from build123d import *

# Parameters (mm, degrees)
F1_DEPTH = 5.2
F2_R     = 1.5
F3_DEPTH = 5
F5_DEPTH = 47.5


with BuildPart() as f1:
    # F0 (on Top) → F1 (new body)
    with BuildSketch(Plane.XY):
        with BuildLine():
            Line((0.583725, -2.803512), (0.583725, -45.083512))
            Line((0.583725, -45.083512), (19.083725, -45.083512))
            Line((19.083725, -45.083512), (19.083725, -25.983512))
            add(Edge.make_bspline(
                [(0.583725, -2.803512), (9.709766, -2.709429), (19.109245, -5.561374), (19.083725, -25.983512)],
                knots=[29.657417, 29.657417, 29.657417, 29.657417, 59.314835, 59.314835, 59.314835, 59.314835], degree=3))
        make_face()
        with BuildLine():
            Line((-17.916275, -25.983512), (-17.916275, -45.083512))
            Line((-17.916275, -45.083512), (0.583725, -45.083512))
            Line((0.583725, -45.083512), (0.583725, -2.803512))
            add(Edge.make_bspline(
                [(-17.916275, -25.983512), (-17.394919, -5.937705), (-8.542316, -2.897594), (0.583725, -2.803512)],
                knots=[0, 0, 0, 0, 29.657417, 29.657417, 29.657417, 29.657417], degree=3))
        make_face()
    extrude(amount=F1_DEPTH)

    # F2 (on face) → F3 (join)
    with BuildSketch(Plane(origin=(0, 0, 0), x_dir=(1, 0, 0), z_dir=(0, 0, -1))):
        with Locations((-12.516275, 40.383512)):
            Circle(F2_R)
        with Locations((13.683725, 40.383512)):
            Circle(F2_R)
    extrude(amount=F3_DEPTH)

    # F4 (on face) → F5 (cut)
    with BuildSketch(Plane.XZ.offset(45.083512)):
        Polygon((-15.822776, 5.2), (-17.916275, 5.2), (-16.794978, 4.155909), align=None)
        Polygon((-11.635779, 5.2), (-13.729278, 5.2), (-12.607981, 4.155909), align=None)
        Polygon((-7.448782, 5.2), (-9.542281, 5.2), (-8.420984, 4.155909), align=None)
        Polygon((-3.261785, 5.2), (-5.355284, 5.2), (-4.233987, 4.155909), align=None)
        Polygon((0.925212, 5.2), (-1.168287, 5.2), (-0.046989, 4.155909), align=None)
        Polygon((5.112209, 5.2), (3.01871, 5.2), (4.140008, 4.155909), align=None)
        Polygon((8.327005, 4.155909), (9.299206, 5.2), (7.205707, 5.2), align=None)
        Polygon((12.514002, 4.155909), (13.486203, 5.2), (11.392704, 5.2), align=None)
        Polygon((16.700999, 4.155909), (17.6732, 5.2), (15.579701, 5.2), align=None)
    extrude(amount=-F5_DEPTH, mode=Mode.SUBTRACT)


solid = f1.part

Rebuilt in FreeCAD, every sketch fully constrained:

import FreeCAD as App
import Part
import Sketcher
from FreeCAD import Vector
Q = App.Units.Quantity


def add_polygon(sketch, points):
    """Adds a closed chain of lines whose ends are joined by coincident constraints."""
    first, n = sketch.GeometryCount, len(points)
    for a, b in zip(points, points[1:] + points[:1]):
        sketch.addGeometry(Part.LineSegment(App.Vector(*a, 0), App.Vector(*b, 0)), False)
    for i in range(n):
        sketch.addConstraint(Sketcher.Constraint("Coincident", first + i, 2, first + (i + 1) % n, 1))

doc = App.newDocument("Part")
body = doc.addObject("PartDesign::Body", "Body")

sketch1 = body.newObject("Sketcher::SketchObject", "Sketch")
sketch1.AttachmentSupport = (doc.getObject("XY_Plane"), [""])
sketch1.MapMode = "FlatFace"
sketch1.addGeometry(Part.LineSegment(Vector(19.083725, -45.083512, 0), Vector(19.083725, -25.983512, 0)), False)
sketch1.addGeometry(Part.BSplineCurve([Vector(0.583725, -2.803512, 0), Vector(9.709766, -2.709429, 0), Vector(19.109245, -5.561374, 0), Vector(19.083725, -25.983512, 0)], [4, 4], [29.657417, 59.314835], False, 3, [1, 1, 1, 1], False), False)
sketch1.addGeometry(Part.BSplineCurve([Vector(-17.916275, -25.983512, 0), Vector(-17.394919, -5.937705, 0), Vector(-8.542316, -2.897594, 0), Vector(0.583725, -2.803512, 0)], [4, 4], [0, 29.657417], False, 3, [1, 1, 1, 1], False), False)
sketch1.addGeometry(Part.LineSegment(Vector(-17.916275, -25.983512, 0), Vector(-17.916275, -45.083512, 0)), False)
sketch1.addGeometry(Part.LineSegment(Vector(-17.916275, -45.083512, 0), Vector(19.083725, -45.083512, 0)), False)
sketch1.addConstraint(Sketcher.Constraint("Block", 1))
sketch1.addConstraint(Sketcher.Constraint("Block", 2))
sketch1.addConstraint(Sketcher.Constraint("Coincident", 0, 2, 1, 2))
sketch1.addConstraint(Sketcher.Constraint("Coincident", 2, 1, 3, 1))
sketch1.addConstraint(Sketcher.Constraint("Coincident", 3, 2, 4, 1))
sketch1.addConstraint(Sketcher.Constraint("Coincident", 4, 2, 0, 1))
sketch1.addConstraint(Sketcher.Constraint("Vertical", 0))
sketch1.addConstraint(Sketcher.Constraint("Vertical", 3))
sketch1.addConstraint(Sketcher.Constraint("Horizontal", 4))
sketch1.addConstraint(Sketcher.Constraint("DistanceY", 0, 1, 0, 2, Q("19.1 mm")))
pad1 = body.newObject("PartDesign::Pad", "Pad")
pad1.Profile = sketch1
pad1.Length = 5.2

sketch2 = body.newObject("Sketcher::SketchObject", "Sketch001")
sketch2.AttachmentSupport = (doc.getObject("XY_Plane"), [""])
sketch2.MapMode = "FlatFace"
sketch2.addGeometry(Part.Circle(Vector(-12.5, -40.4, 0), Vector(0, 0, 1), 1.5), False)
sketch2.addGeometry(Part.Circle(Vector(13.7, -40.4, 0), Vector(0, 0, 1), 1.5), False)
sketch2.addConstraint(Sketcher.Constraint("Equal", 0, 1))
sketch2.addConstraint(Sketcher.Constraint("Horizontal", 0, 3, 1, 3))
sketch2.addConstraint(Sketcher.Constraint("Diameter", 0, Q("3 mm")))
sketch2.addConstraint(Sketcher.Constraint("DistanceX", 0, 3, 1, 3, Q("26.2 mm")))
sketch2.addConstraint(Sketcher.Constraint("DistanceX", 0, 3, -1, 1, Q("12.516275 mm")))
sketch2.addConstraint(Sketcher.Constraint("DistanceY", 0, 3, -1, 1, Q("40.383512 mm")))
pad2 = body.newObject("PartDesign::Pad", "Pad001")
pad2.Profile = sketch2
pad2.Length = 5
pad2.Reversed = True

sketch3 = body.newObject("Sketcher::SketchObject", "Sketch002")
sketch3.AttachmentSupport = (doc.getObject("XZ_Plane"), [""])
sketch3.MapMode = "FlatFace"
sketch3.AttachmentOffset = App.Placement(Vector(0, 0, 45.083512), App.Rotation())
add_polygon(sketch3, [(-15.8, 5.2), (-17.9, 5.2), (-16.8, 4.2)])
add_polygon(sketch3, [(-11.6, 5.2), (-13.7, 5.2), (-12.6, 4.2)])
add_polygon(sketch3, [(-7.4, 5.2), (-9.5, 5.2), (-8.4, 4.2)])
add_polygon(sketch3, [(-3.3, 5.2), (-5.4, 5.2), (-4.2, 4.2)])
add_polygon(sketch3, [(0.9, 5.2), (-1.2, 5.2), (0, 4.2)])
add_polygon(sketch3, [(5.1, 5.2), (3, 5.2), (4.1, 4.2)])
add_polygon(sketch3, [(8.3, 4.2), (9.3, 5.2), (7.2, 5.2)])
add_polygon(sketch3, [(12.5, 4.2), (13.5, 5.2), (11.4, 5.2)])
add_polygon(sketch3, [(16.7, 4.2), (17.7, 5.2), (15.6, 5.2)])
sketch3.addConstraint(Sketcher.Constraint("Horizontal", 0))
sketch3.addConstraint(Sketcher.Constraint("Horizontal", 3))
sketch3.addConstraint(Sketcher.Constraint("Horizontal", 6))
sketch3.addConstraint(Sketcher.Constraint("Horizontal", 9))
sketch3.addConstraint(Sketcher.Constraint("Horizontal", 12))
sketch3.addConstraint(Sketcher.Constraint("Horizontal", 15))
sketch3.addConstraint(Sketcher.Constraint("Horizontal", 19))
sketch3.addConstraint(Sketcher.Constraint("Horizontal", 22))
sketch3.addConstraint(Sketcher.Constraint("Horizontal", 25))
sketch3.addConstraint(Sketcher.Constraint("Perpendicular", 1, 2))
sketch3.addConstraint(Sketcher.Constraint("Perpendicular", 2, 4))
sketch3.addConstraint(Sketcher.Constraint("Perpendicular", 4, 5))
sketch3.addConstraint(Sketcher.Constraint("Perpendicular", 5, 7))
sketch3.addConstraint(Sketcher.Constraint("Perpendicular", 7, 8))
sketch3.addConstraint(Sketcher.Constraint("Perpendicular", 8, 10))
sketch3.addConstraint(Sketcher.Constraint("Perpendicular", 10, 11))
sketch3.addConstraint(Sketcher.Constraint("Perpendicular", 11, 13))
sketch3.addConstraint(Sketcher.Constraint("Perpendicular", 13, 14))
sketch3.addConstraint(Sketcher.Constraint("Perpendicular", 14, 16))
sketch3.addConstraint(Sketcher.Constraint("Perpendicular", 16, 17))
sketch3.addConstraint(Sketcher.Constraint("Parallel", 17, 18))
sketch3.addConstraint(Sketcher.Constraint("Perpendicular", 18, 20))
sketch3.addConstraint(Sketcher.Constraint("Perpendicular", 20, 21))
sketch3.addConstraint(Sketcher.Constraint("Perpendicular", 21, 23))
sketch3.addConstraint(Sketcher.Constraint("Perpendicular", 23, 24))
sketch3.addConstraint(Sketcher.Constraint("Perpendicular", 24, 26))
sketch3.addConstraint(Sketcher.Constraint("Horizontal", 2, 2, 3, 2))
sketch3.addConstraint(Sketcher.Constraint("Horizontal", 1, 2, 4, 2))
sketch3.addConstraint(Sketcher.Constraint("Horizontal", 5, 2, 6, 2))
sketch3.addConstraint(Sketcher.Constraint("Horizontal", 4, 2, 7, 2))
sketch3.addConstraint(Sketcher.Constraint("Horizontal", 8, 2, 9, 2))
sketch3.addConstraint(Sketcher.Constraint("Horizontal", 7, 2, 10, 2))
sketch3.addConstraint(Sketcher.Constraint("Horizontal", 11, 2, 12, 2))
sketch3.addConstraint(Sketcher.Constraint("Horizontal", 10, 2, 13, 2))
sketch3.addConstraint(Sketcher.Constraint("Horizontal", 14, 2, 15, 2))
sketch3.addConstraint(Sketcher.Constraint("Horizontal", 13, 2, 16, 2))
sketch3.addConstraint(Sketcher.Constraint("Horizontal", 17, 2, 18, 2))
sketch3.addConstraint(Sketcher.Constraint("Horizontal", 16, 2, 20, 2))
sketch3.addConstraint(Sketcher.Constraint("Horizontal", 19, 2, 21, 2))
sketch3.addConstraint(Sketcher.Constraint("Horizontal", 20, 2, 23, 2))
sketch3.addConstraint(Sketcher.Constraint("Horizontal", 22, 2, 24, 2))
sketch3.addConstraint(Sketcher.Constraint("Horizontal", 23, 2, 26, 2))
sketch3.addConstraint(Sketcher.Constraint("DistanceY", -1, 1, 0, 2, Q("5.2 mm")))
sketch3.addConstraint(Sketcher.Constraint("DistanceX", 0, 2, 0, 1, Q("2.093499 mm")))
sketch3.addConstraint(Sketcher.Constraint("DistanceX", -1, 1, 26, 2, Q("16.700999 mm")))
sketch3.addConstraint(Sketcher.Constraint("DistanceX", -1, 1, 24, 2, Q("17.6732 mm")))
sketch3.addConstraint(Sketcher.Constraint("DistanceX", 1, 2, 3, 2, Q("3.0657 mm")))
sketch3.addConstraint(Sketcher.Constraint("DistanceX", 5, 2, 6, 2, Q("2.093498 mm")))
sketch3.addConstraint(Sketcher.Constraint("DistanceX", 7, 2, 9, 2, Q("3.0657 mm")))
sketch3.addConstraint(Sketcher.Constraint("DistanceX", 11, 2, 12, 2, Q("2.093498 mm")))
sketch3.addConstraint(Sketcher.Constraint("DistanceX", 13, 2, 15, 2, Q("3.065699 mm")))
sketch3.addConstraint(Sketcher.Constraint("DistanceX", 17, 2, 19, 2, Q("2.093498 mm")))
sketch3.addConstraint(Sketcher.Constraint("DistanceX", 18, 2, 22, 2, Q("2.093498 mm")))
sketch3.addConstraint(Sketcher.Constraint("DistanceX", 23, 2, 24, 2, Q("5.159198 mm")))
pocket1 = body.newObject("PartDesign::Pocket", "Pocket")
pocket1.Profile = sketch3
pocket1.Length = 47.5

doc.recompute()
